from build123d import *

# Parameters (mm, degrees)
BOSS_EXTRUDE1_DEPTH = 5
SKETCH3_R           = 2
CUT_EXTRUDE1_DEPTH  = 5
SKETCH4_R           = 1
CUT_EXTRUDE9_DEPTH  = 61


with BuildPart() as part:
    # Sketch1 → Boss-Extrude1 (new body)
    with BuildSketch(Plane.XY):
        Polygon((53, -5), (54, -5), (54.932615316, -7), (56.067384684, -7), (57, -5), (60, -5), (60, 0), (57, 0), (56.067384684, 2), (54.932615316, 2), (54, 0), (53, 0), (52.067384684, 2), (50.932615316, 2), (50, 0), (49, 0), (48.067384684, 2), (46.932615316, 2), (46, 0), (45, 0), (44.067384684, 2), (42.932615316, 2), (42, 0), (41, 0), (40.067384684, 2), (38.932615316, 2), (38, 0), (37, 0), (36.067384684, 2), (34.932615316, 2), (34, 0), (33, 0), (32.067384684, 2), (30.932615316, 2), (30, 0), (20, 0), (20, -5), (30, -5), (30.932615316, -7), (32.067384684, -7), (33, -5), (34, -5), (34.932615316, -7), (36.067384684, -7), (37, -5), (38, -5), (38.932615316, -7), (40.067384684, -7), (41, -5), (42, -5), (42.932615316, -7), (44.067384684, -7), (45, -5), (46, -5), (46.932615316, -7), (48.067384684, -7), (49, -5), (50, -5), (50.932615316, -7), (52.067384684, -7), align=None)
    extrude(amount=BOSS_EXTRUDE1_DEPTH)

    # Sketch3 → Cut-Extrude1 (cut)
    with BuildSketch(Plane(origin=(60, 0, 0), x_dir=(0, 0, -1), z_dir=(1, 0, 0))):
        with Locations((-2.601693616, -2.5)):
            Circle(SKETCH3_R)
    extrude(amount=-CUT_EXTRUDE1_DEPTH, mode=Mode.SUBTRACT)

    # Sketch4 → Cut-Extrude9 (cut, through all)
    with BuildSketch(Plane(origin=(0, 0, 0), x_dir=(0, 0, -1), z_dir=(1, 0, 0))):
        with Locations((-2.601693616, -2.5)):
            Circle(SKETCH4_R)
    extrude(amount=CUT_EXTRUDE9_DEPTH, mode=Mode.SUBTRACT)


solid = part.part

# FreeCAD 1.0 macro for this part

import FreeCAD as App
import Part
import Sketcher
Q = App.Units.Quantity


def add_polygon(sketch, points):
    """Adds a closed chain of lines whose ends are joined by coincident constraints."""
    first, n = sketch.GeometryCount, len(points)
    for a, b in zip(points, points[1:] + points[:1]):
        sketch.addGeometry(Part.LineSegment(App.Vector(*a, 0), App.Vector(*b, 0)), False)
    for i in range(n):
        sketch.addConstraint(Sketcher.Constraint("Coincident", first + i, 2, first + (i + 1) % n, 1))

doc = App.newDocument("Part")
body = doc.addObject("PartDesign::Body", "Body")

# Sketch on XY plane
sketch1 = doc.addObject("Sketcher::SketchObject", "Sketch")
body.addObject(sketch1)
sketch1.AttachmentSupport = (doc.XY_Plane, [""])
sketch1.MapMode = "FlatFace"
add_polygon(sketch1, [(53, -5), (54, -5), (54.9, -7), (56.1, -7), (57, -5), (60, -5), (60, 0), (57, 0), (56.1, 2), (54.9, 2), (54, 0), (53, 0), (52.1, 2), (50.9, 2), (50, 0), (49, 0), (48.1, 2), (46.9, 2), (46, 0), (45, 0), (44.1, 2), (42.9, 2), (42, 0), (41, 0), (40.1, 2), (38.9, 2), (38, 0), (37, 0), (36.1, 2), (34.9, 2), (34, 0), (33, 0), (32.1, 2), (30.9, 2), (30, 0), (20, 0), (20, -5), (30, -5), (30.9, -7), (32.1, -7), (33, -5), (34, -5), (34.9, -7), (36.1, -7), (37, -5), (38, -5), (38.9, -7), (40.1, -7), (41, -5), (42, -5), (42.9, -7), (44.1, -7), (45, -5), (46, -5), (46.9, -7), (48.1, -7), (49, -5), (50, -5), (50.9, -7), (52.1, -7)])  # lines 0-59
sketch1.addConstraint(Sketcher.Constraint("Horizontal", 0))
sketch1.addConstraint(Sketcher.Constraint("Horizontal", 2))
sketch1.addConstraint(Sketcher.Constraint("Horizontal", 4))
sketch1.addConstraint(Sketcher.Constraint("Vertical", 5))
sketch1.addConstraint(Sketcher.Constraint("Horizontal", 6))
sketch1.addConstraint(Sketcher.Constraint("Horizontal", 8))
sketch1.addConstraint(Sketcher.Constraint("Horizontal", 10))
sketch1.addConstraint(Sketcher.Constraint("Horizontal", 12))
sketch1.addConstraint(Sketcher.Constraint("Horizontal", 14))
sketch1.addConstraint(Sketcher.Constraint("Horizontal", 16))
sketch1.addConstraint(Sketcher.Constraint("Horizontal", 18))
sketch1.addConstraint(Sketcher.Constraint("Horizontal", 20))
sketch1.addConstraint(Sketcher.Constraint("Horizontal", 22))
sketch1.addConstraint(Sketcher.Constraint("Horizontal", 24))
sketch1.addConstraint(Sketcher.Constraint("Horizontal", 26))
sketch1.addConstraint(Sketcher.Constraint("Horizontal", 28))
sketch1.addConstraint(Sketcher.Constraint("Horizontal", 30))
sketch1.addConstraint(Sketcher.Constraint("Horizontal", 32))
sketch1.addConstraint(Sketcher.Constraint("Horizontal", 34))
sketch1.addConstraint(Sketcher.Constraint("Vertical", 35))
sketch1.addConstraint(Sketcher.Constraint("Horizontal", 36))
sketch1.addConstraint(Sketcher.Constraint("Horizontal", 38))
sketch1.addConstraint(Sketcher.Constraint("Horizontal", 40))
sketch1.addConstraint(Sketcher.Constraint("Horizontal", 42))
sketch1.addConstraint(Sketcher.Constraint("Horizontal", 44))
sketch1.addConstraint(Sketcher.Constraint("Horizontal", 46))
sketch1.addConstraint(Sketcher.Constraint("Horizontal", 48))
sketch1.addConstraint(Sketcher.Constraint("Horizontal", 50))
sketch1.addConstraint(Sketcher.Constraint("Horizontal", 52))
sketch1.addConstraint(Sketcher.Constraint("Horizontal", 54))
sketch1.addConstraint(Sketcher.Constraint("Horizontal", 56))
sketch1.addConstraint(Sketcher.Constraint("Horizontal", 58))
sketch1.addConstraint(Sketcher.Constraint("PointOnObject", 5, 2, -1))
sketch1.addConstraint(Sketcher.Constraint("PointOnObject", 9, 2, -1))
sketch1.addConstraint(Sketcher.Constraint("PointOnObject", 13, 2, -1))
sketch1.addConstraint(Sketcher.Constraint("PointOnObject", 17, 2, -1))
sketch1.addConstraint(Sketcher.Constraint("PointOnObject", 21, 2, -1))
sketch1.addConstraint(Sketcher.Constraint("PointOnObject", 25, 2, -1))
sketch1.addConstraint(Sketcher.Constraint("PointOnObject", 29, 2, -1))
sketch1.addConstraint(Sketcher.Constraint("PointOnObject", 33, 2, -1))
sketch1.addConstraint(Sketcher.Constraint("Parallel", 1, 7))
sketch1.addConstraint(Sketcher.Constraint("Parallel", 3, 9))
sketch1.addConstraint(Sketcher.Constraint("Parallel", 7, 11))
sketch1.addConstraint(Sketcher.Constraint("Parallel", 9, 13))
sketch1.addConstraint(Sketcher.Constraint("Parallel", 11, 15))
sketch1.addConstraint(Sketcher.Constraint("Parallel", 13, 17))
sketch1.addConstraint(Sketcher.Constraint("Parallel", 15, 19))
sketch1.addConstraint(Sketcher.Constraint("Parallel", 17, 21))
sketch1.addConstraint(Sketcher.Constraint("Parallel", 19, 23))
sketch1.addConstraint(Sketcher.Constraint("Parallel", 21, 25))
sketch1.addConstraint(Sketcher.Constraint("Parallel", 23, 27))
sketch1.addConstraint(Sketcher.Constraint("Parallel", 25, 29))
sketch1.addConstraint(Sketcher.Constraint("Parallel", 27, 31))
sketch1.addConstraint(Sketcher.Constraint("Parallel", 29, 33))
sketch1.addConstraint(Sketcher.Constraint("Parallel", 31, 37))
sketch1.addConstraint(Sketcher.Constraint("Parallel", 33, 39))
sketch1.addConstraint(Sketcher.Constraint("Parallel", 37, 41))
sketch1.addConstraint(Sketcher.Constraint("Parallel", 39, 43))
sketch1.addConstraint(Sketcher.Constraint("Parallel", 41, 45))
sketch1.addConstraint(Sketcher.Constraint("Parallel", 43, 47))
sketch1.addConstraint(Sketcher.Constraint("Parallel", 45, 49))
sketch1.addConstraint(Sketcher.Constraint("Parallel", 47, 51))
sketch1.addConstraint(Sketcher.Constraint("Parallel", 49, 53))
sketch1.addConstraint(Sketcher.Constraint("Parallel", 51, 55))
sketch1.addConstraint(Sketcher.Constraint("Parallel", 53, 57))
sketch1.addConstraint(Sketcher.Constraint("Parallel", 55, 59))
sketch1.addConstraint(Sketcher.Constraint("Horizontal", 0, 2, 3, 2))
sketch1.addConstraint(Sketcher.Constraint("Horizontal", 8, 2, 11, 2))
sketch1.addConstraint(Sketcher.Constraint("Horizontal", 12, 2, 15, 2))
sketch1.addConstraint(Sketcher.Constraint("Horizontal", 16, 2, 19, 2))
sketch1.addConstraint(Sketcher.Constraint("Horizontal", 20, 2, 23, 2))
sketch1.addConstraint(Sketcher.Constraint("Horizontal", 24, 2, 27, 2))
sketch1.addConstraint(Sketcher.Constraint("Horizontal", 28, 2, 31, 2))
sketch1.addConstraint(Sketcher.Constraint("Horizontal", 4, 2, 35, 2))
sketch1.addConstraint(Sketcher.Constraint("Horizontal", 2, 2, 37, 2))
sketch1.addConstraint(Sketcher.Constraint("Horizontal", 36, 2, 39, 2))
sketch1.addConstraint(Sketcher.Constraint("Horizontal", 38, 2, 41, 2))
sketch1.addConstraint(Sketcher.Constraint("Horizontal", 40, 2, 43, 2))
sketch1.addConstraint(Sketcher.Constraint("Horizontal", 42, 2, 45, 2))
sketch1.addConstraint(Sketcher.Constraint("Horizontal", 44, 2, 47, 2))
sketch1.addConstraint(Sketcher.Constraint("Horizontal", 46, 2, 49, 2))
sketch1.addConstraint(Sketcher.Constraint("Horizontal", 48, 2, 51, 2))
sketch1.addConstraint(Sketcher.Constraint("Horizontal", 50, 2, 53, 2))
sketch1.addConstraint(Sketcher.Constraint("Horizontal", 52, 2, 55, 2))
sketch1.addConstraint(Sketcher.Constraint("Horizontal", 54, 2, 57, 2))
sketch1.addConstraint(Sketcher.Constraint("Vertical", 3, 2, 6, 2))
sketch1.addConstraint(Sketcher.Constraint("Vertical", 2, 2, 7, 2))
sketch1.addConstraint(Sketcher.Constraint("Vertical", 1, 2, 8, 2))
sketch1.addConstraint(Sketcher.Constraint("Vertical", 0, 2, 9, 2))
sketch1.addConstraint(Sketcher.Constraint("Vertical", 33, 2, 36, 2))
sketch1.addConstraint(Sketcher.Constraint("Vertical", 31, 2, 38, 2))
sketch1.addConstraint(Sketcher.Constraint("Vertical", 29, 2, 40, 2))
sketch1.addConstraint(Sketcher.Constraint("Vertical", 27, 2, 42, 2))
sketch1.addConstraint(Sketcher.Constraint("Vertical", 25, 2, 44, 2))
sketch1.addConstraint(Sketcher.Constraint("Vertical", 23, 2, 46, 2))
sketch1.addConstraint(Sketcher.Constraint("Vertical", 21, 2, 48, 2))
sketch1.addConstraint(Sketcher.Constraint("Vertical", 19, 2, 50, 2))
sketch1.addConstraint(Sketcher.Constraint("Vertical", 17, 2, 52, 2))
sketch1.addConstraint(Sketcher.Constraint("Vertical", 15, 2, 54, 2))
sketch1.addConstraint(Sketcher.Constraint("Vertical", 13, 2, 56, 2))
sketch1.addConstraint(Sketcher.Constraint("Vertical", 11, 2, 58, 2))
sketch1.addConstraint(Sketcher.Constraint("Equal", 8, 12))
sketch1.addConstraint(Sketcher.Constraint("Equal", 10, 14))
sketch1.addConstraint(Sketcher.Constraint("Equal", 12, 16))
sketch1.addConstraint(Sketcher.Constraint("Equal", 14, 18))
sketch1.addConstraint(Sketcher.Constraint("Equal", 16, 20))
sketch1.addConstraint(Sketcher.Constraint("Equal", 18, 22))
sketch1.addConstraint(Sketcher.Constraint("Equal", 20, 24))
sketch1.addConstraint(Sketcher.Constraint("Equal", 22, 26))
sketch1.addConstraint(Sketcher.Constraint("Equal", 24, 28))
sketch1.addConstraint(Sketcher.Constraint("Equal", 26, 30))
sketch1.addConstraint(Sketcher.Constraint("Equal", 28, 32))
sketch1.addConstraint(Sketcher.Constraint("DistanceX", 0, 1, 0, 2, Q("1 mm")))
sketch1.addConstraint(Sketcher.Constraint("DistanceX", 4, 1, 4, 2, Q("3 mm")))
sketch1.addConstraint(Sketcher.Constraint("DistanceX", 34, 2, 34, 1, Q("10 mm")))
sketch1.addConstraint(Sketcher.Constraint("DistanceY", 5, 1, 5, 2, Q("5 mm")))
sketch1.addConstraint(Sketcher.Constraint("Angle", 1, Q("-65 deg")))
sketch1.addConstraint(Sketcher.Constraint("DistanceX", -1, 1, 0, 2, Q("54 mm")))
sketch1.addConstraint(Sketcher.Constraint("DistanceY", 1, 2, -1, 1, Q("7 mm")))
sketch1.addConstraint(Sketcher.Constraint("DistanceX", -1, 1, 3, 2, Q("57 mm")))
pad1 = doc.addObject("PartDesign::Pad", "Pad")
body.addObject(pad1)
pad1.Profile = sketch1
pad1.Length = 5

# Sketch on YZ plane
sketch2 = doc.addObject("Sketcher::SketchObject", "Sketch001")
body.addObject(sketch2)
sketch2.AttachmentSupport = (doc.YZ_Plane, [""])
sketch2.MapMode = "FlatFace"
sketch2.AttachmentOffset = App.Placement(App.Vector(0, 0, 60), App.Rotation())
sketch2.addGeometry(Part.Circle(App.Vector(-2.5, 2.6, 0), App.Vector(0, 0, 1), 2), False)
sketch2.addConstraint(Sketcher.Constraint("Diameter", 0, Q("4 mm")))
sketch2.addConstraint(Sketcher.Constraint("DistanceX", 0, 3, -1, 1, Q("2.5 mm")))
sketch2.addConstraint(Sketcher.Constraint("DistanceY", -1, 1, 0, 3, Q("2.601694 mm")))
pocket1 = doc.addObject("PartDesign::Pocket", "Pocket")
body.addObject(pocket1)
pocket1.Profile = sketch2
pocket1.Length = 5

# Sketch on YZ plane
sketch3 = doc.addObject("Sketcher::SketchObject", "Sketch002")
body.addObject(sketch3)
sketch3.AttachmentSupport = (doc.YZ_Plane, [""])
sketch3.MapMode = "FlatFace"
sketch3.addGeometry(Part.Circle(App.Vector(-2.5, 2.6, 0), App.Vector(0, 0, 1), 1), False)
sketch3.addConstraint(Sketcher.Constraint("Diameter", 0, Q("2 mm")))
sketch3.addConstraint(Sketcher.Constraint("DistanceX", 0, 3, -1, 1, Q("2.5 mm")))
sketch3.addConstraint(Sketcher.Constraint("DistanceY", -1, 1, 0, 3, Q("2.601694 mm")))
pocket2 = doc.addObject("PartDesign::Pocket", "Pocket001")
body.addObject(pocket2)
pocket2.Profile = sketch3
pocket2.Type = "ThroughAll"
pocket2.Reversed = True

doc.recompute()
